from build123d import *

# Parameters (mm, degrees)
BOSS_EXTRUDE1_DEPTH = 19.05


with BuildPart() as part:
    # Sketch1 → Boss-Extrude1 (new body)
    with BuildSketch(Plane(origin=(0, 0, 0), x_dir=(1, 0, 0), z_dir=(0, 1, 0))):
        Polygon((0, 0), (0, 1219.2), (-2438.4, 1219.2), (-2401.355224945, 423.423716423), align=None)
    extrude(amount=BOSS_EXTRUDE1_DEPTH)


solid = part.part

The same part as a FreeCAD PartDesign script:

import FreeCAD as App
import Part
import Sketcher

V = App.Vector
Q = App.Units.Quantity

doc = App.newDocument("Part")
params = doc.addObject("Spreadsheet::Sheet", "Params")
for row, (alias, value) in enumerate([
    ("sketch1_width", "96 in"),
    ("sketch1_height", "48 in"),
    ("sketch1_length", "96 in"),
    ("pad1_length", "0.75 in"),
], start=1):
    params.set(f"A{row}", alias)
    params.set(f"B{row}", "=" + value)
    params.setAlias(f"B{row}", alias)

body = doc.addObject("PartDesign::Body", "Body")

sketch1 = body.newObject("Sketcher::SketchObject", "Sketch")
sketch1.AttachmentSupport = (doc.getObject("XZ_Plane"), [""])
sketch1.MapMode = "FlatFace"
sketch1.addGeometry([
    Part.LineSegment(V(0, 0, 0), V(0, -1219, 0)),
    Part.LineSegment(V(0, -1219, 0), V(-2438, -1219, 0)),
    Part.LineSegment(V(-2438, -1219, 0), V(-2401, -423, 0)),
    Part.LineSegment(V(-2401, -423, 0), V(0, 0, 0)),
], False)
sketch1.addConstraint([
    Sketcher.Constraint("Coincident", 0, 2, 1, 1),
    Sketcher.Constraint("Coincident", 1, 2, 2, 1),
    Sketcher.Constraint("Coincident", 2, 2, 3, 1),
    Sketcher.Constraint("Coincident", 3, 2, 0, 1),
    Sketcher.Constraint("Vertical", 0),
    Sketcher.Constraint("Horizontal", 1),
    Sketcher.Constraint("Coincident", 3, 2, -1, 1),
    Sketcher.Constraint("DistanceX", 1, 2, 1, 1, Q("96 in")),
    Sketcher.Constraint("DistanceY", 0, 2, 0, 1, Q("48 in")),
    Sketcher.Constraint("Distance", 3, Q("96 in")),
    Sketcher.Constraint("Angle", 3, Q("10 deg")),
])
sketch1.setExpression("Constraints[7]", "Params.sketch1_width")
sketch1.setExpression("Constraints[8]", "Params.sketch1_height")
sketch1.setExpression("Constraints[9]", "Params.sketch1_length")
pad1 = body.newObject("PartDesign::Pad", "Pad")
pad1.Profile = sketch1
pad1.setExpression("Length", "Params.pad1_length")
pad1.Reversed = True

doc.recompute()
